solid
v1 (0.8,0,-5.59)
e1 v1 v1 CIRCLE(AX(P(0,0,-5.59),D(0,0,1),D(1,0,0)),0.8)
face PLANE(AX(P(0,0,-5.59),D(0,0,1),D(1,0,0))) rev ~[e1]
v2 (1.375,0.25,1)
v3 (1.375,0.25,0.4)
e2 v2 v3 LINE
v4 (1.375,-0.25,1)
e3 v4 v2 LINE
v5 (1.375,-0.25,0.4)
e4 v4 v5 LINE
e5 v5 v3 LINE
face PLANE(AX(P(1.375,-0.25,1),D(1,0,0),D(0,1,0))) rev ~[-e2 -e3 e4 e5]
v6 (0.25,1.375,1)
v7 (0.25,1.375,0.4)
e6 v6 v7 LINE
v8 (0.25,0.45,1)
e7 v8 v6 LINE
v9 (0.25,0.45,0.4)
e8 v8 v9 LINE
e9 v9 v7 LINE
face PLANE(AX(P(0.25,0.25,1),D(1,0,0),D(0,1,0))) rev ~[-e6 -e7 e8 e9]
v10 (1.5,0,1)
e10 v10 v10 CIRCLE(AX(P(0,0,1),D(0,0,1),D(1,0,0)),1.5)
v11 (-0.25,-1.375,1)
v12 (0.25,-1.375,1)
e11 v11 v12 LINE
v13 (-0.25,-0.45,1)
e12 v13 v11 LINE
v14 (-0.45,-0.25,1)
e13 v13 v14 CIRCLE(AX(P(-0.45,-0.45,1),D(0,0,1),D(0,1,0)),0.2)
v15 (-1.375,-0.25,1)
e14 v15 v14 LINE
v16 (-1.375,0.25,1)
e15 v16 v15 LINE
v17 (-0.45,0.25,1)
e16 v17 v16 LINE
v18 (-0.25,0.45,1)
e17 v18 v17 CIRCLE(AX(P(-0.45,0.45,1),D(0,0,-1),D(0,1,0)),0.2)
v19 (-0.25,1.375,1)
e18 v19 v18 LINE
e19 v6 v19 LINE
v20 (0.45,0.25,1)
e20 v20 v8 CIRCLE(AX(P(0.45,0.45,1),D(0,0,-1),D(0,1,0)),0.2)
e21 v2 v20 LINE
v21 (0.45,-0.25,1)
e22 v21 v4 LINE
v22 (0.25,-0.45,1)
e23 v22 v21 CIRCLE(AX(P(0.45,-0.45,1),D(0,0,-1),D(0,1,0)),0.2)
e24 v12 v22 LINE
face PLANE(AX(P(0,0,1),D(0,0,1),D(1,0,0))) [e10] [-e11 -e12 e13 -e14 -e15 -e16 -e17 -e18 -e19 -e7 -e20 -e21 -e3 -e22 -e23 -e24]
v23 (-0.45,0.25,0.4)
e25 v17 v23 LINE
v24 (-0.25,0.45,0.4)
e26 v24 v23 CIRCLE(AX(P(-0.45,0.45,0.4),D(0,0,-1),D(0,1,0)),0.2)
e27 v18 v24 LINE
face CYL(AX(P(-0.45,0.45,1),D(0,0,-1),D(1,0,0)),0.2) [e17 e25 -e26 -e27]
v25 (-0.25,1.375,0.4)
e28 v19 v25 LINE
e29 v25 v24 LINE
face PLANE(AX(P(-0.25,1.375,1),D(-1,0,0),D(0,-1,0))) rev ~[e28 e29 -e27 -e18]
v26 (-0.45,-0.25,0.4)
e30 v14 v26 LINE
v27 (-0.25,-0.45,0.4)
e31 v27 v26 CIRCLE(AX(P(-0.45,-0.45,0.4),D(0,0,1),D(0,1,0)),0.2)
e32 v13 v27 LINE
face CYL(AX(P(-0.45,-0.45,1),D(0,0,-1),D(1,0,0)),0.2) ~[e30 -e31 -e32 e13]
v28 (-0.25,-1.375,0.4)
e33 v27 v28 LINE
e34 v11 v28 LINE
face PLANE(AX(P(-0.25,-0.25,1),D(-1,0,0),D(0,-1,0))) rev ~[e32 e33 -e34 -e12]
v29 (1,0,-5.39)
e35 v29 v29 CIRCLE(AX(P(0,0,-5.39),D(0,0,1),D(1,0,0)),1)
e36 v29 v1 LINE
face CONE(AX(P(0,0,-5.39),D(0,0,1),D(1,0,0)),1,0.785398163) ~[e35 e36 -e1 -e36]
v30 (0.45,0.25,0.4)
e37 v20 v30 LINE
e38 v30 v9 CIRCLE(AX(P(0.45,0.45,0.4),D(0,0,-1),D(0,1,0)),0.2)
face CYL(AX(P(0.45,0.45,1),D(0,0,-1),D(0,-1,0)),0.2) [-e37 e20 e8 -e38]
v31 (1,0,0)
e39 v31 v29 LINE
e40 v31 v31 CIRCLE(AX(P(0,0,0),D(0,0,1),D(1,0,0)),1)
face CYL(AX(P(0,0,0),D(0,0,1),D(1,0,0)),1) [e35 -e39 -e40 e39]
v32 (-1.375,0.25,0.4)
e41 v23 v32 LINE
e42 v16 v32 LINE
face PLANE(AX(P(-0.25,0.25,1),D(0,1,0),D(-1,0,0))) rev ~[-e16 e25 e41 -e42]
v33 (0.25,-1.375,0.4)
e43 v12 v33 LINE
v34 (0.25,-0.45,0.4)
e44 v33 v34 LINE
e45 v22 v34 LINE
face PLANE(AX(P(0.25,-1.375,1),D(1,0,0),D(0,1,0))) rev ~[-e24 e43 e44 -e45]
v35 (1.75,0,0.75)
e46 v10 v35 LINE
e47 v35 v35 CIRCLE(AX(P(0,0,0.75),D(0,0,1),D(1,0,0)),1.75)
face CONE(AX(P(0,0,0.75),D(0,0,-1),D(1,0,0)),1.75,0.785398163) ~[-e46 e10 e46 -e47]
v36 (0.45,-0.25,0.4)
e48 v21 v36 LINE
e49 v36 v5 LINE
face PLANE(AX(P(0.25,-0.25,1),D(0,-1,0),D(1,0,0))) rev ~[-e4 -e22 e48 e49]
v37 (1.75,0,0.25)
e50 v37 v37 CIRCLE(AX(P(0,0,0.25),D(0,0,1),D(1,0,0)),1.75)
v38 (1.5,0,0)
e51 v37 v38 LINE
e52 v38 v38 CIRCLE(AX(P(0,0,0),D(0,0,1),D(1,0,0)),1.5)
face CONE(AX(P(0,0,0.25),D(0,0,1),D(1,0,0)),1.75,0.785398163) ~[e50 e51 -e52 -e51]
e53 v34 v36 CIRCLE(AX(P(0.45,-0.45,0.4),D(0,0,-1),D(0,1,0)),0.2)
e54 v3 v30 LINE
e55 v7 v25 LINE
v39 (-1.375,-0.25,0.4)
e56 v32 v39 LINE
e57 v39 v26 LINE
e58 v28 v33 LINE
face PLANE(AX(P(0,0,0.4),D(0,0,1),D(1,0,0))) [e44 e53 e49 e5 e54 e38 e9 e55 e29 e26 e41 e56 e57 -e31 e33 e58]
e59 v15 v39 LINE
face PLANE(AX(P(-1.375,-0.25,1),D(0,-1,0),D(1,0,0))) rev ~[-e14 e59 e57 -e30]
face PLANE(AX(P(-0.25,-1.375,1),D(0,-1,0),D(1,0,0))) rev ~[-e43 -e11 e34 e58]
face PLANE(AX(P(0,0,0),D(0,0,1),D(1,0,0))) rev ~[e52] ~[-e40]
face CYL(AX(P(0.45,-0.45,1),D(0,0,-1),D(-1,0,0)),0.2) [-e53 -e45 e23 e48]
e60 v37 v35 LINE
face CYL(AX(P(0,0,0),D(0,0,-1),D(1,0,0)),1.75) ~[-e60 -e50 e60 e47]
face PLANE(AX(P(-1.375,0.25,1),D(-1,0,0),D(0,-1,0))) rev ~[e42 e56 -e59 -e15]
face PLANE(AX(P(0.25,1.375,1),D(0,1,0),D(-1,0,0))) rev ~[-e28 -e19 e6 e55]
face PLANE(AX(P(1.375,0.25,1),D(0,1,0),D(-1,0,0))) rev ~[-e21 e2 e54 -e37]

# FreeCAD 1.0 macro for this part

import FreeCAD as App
import Part
import Sketcher

V = App.Vector
Q = App.Units.Quantity


def edges_at(feature, points):
    """Names of the edges that pass closest to the given points."""
    edges = feature.Shape.Edges
    near = lambda p: min(range(len(edges)), key=lambda i: edges[i].distToShape(Part.Vertex(*p))[0])
    return sorted({f"Edge{near(p) + 1}" for p in points})

doc = App.newDocument("Part")
body = doc.addObject("PartDesign::Body", "Body")

# Sketch on XY plane
sketch1 = body.newObject("Sketcher::SketchObject", "Sketch")
sketch1.AttachmentSupport = (doc.getObject("XY_Plane"), [""])
sketch1.MapMode = "FlatFace"
sketch1.addGeometry(Part.Circle(V(0, 0, 0), V(0, 0, 1), 1), False)
sketch1.addConstraint(Sketcher.Constraint("Coincident", 0, 3, -1, 1))
sketch1.addConstraint(Sketcher.Constraint("Diameter", 0, Q("2 mm")))
pad1 = body.newObject("PartDesign::Pad", "Pad")
pad1.Profile = sketch1
pad1.Length = 5.59
pad1.Reversed = True

# Sketch on XY plane
sketch2 = body.newObject("Sketcher::SketchObject", "Sketch001")
sketch2.AttachmentSupport = (doc.getObject("XY_Plane"), [""])
sketch2.MapMode = "FlatFace"
sketch2.addGeometry(Part.Circle(V(0, 0, 0), V(0, 0, 1), 1.8), False)
sketch2.addConstraint(Sketcher.Constraint("Coincident", 0, 3, -1, 1))
sketch2.addConstraint(Sketcher.Constraint("Diameter", 0, Q("3.5 mm")))
pad2 = body.newObject("PartDesign::Pad", "Pad001")
pad2.Profile = sketch2
pad2.Length = 1

# Sketch on XY plane
sketch3 = body.newObject("Sketcher::SketchObject", "Sketch002")
sketch3.AttachmentSupport = (doc.getObject("XY_Plane"), [""])
sketch3.MapMode = "FlatFace"
sketch3.AttachmentOffset = App.Placement(V(0, 0, 1), App.Rotation())
sketch3.addGeometry(Part.LineSegment(V(-0.2, -0.2, 0), V(-0.2, -1.4, 0)), False)
sketch3.addGeometry(Part.LineSegment(V(-0.2, -1.4, 0), V(0.2, -1.4, 0)), False)
sketch3.addGeometry(Part.LineSegment(V(0.2, -1.4, 0), V(0.2, -0.2, 0)), False)
sketch3.addGeometry(Part.LineSegment(V(0.2, -0.2, 0), V(1.4, -0.2, 0)), False)
sketch3.addGeometry(Part.LineSegment(V(1.4, -0.2, 0), V(1.4, 0.2, 0)), False)
sketch3.addGeometry(Part.LineSegment(V(1.4, 0.2, 0), V(0.2, 0.2, 0)), False)
sketch3.addGeometry(Part.LineSegment(V(0.2, 0.2, 0), V(0.2, 1.4, 0)), False)
sketch3.addGeometry(Part.LineSegment(V(0.2, 1.4, 0), V(-0.2, 1.4, 0)), False)
sketch3.addGeometry(Part.LineSegment(V(-0.2, 1.4, 0), V(-0.2, 0.2, 0)), False)
sketch3.addGeometry(Part.LineSegment(V(-0.2, 0.2, 0), V(-1.4, 0.2, 0)), False)
sketch3.addGeometry(Part.LineSegment(V(-1.4, 0.2, 0), V(-1.4, -0.2, 0)), False)
sketch3.addGeometry(Part.LineSegment(V(-1.4, -0.2, 0), V(-0.2, -0.2, 0)), False)
sketch3.addConstraint(Sketcher.Constraint("Coincident", 0, 2, 1, 1))
sketch3.addConstraint(Sketcher.Constraint("Coincident", 1, 2, 2, 1))
sketch3.addConstraint(Sketcher.Constraint("Coincident", 2, 2, 3, 1))
sketch3.addConstraint(Sketcher.Constraint("Coincident", 3, 2, 4, 1))
sketch3.addConstraint(Sketcher.Constraint("Coincident", 4, 2, 5, 1))
sketch3.addConstraint(Sketcher.Constraint("Coincident", 5, 2, 6, 1))
sketch3.addConstraint(Sketcher.Constraint("Coincident", 6, 2, 7, 1))
sketch3.addConstraint(Sketcher.Constraint("Coincident", 7, 2, 8, 1))
sketch3.addConstraint(Sketcher.Constraint("Coincident", 8, 2, 9, 1))
sketch3.addConstraint(Sketcher.Constraint("Coincident", 9, 2, 10, 1))
sketch3.addConstraint(Sketcher.Constraint("Coincident", 10, 2, 11, 1))
sketch3.addConstraint(Sketcher.Constraint("Coincident", 11, 2, 0, 1))
sketch3.addConstraint(Sketcher.Constraint("Vertical", 0))
sketch3.addConstraint(Sketcher.Constraint("Horizontal", 1))
sketch3.addConstraint(Sketcher.Constraint("Vertical", 2))
sketch3.addConstraint(Sketcher.Constraint("Horizontal", 3))
sketch3.addConstraint(Sketcher.Constraint("Vertical", 4))
sketch3.addConstraint(Sketcher.Constraint("Horizontal", 5))
sketch3.addConstraint(Sketcher.Constraint("Vertical", 6))
sketch3.addConstraint(Sketcher.Constraint("Horizontal", 7))
sketch3.addConstraint(Sketcher.Constraint("Vertical", 8))
sketch3.addConstraint(Sketcher.Constraint("Horizontal", 9))
sketch3.addConstraint(Sketcher.Constraint("Vertical", 10))
sketch3.addConstraint(Sketcher.Constraint("Horizontal", 11))
sketch3.addConstraint(Sketcher.Constraint("Symmetric", 0, 2, 6, 2, -1, 1))
sketch3.addConstraint(Sketcher.Constraint("Symmetric", 2, 2, 8, 2, -1, 1))
sketch3.addConstraint(Sketcher.Constraint("Symmetric", 4, 2, 10, 2, -1, 1))
sketch3.addConstraint(Sketcher.Constraint("Symmetric", 5, 2, 8, 2, -2))
sketch3.addConstraint(Sketcher.Constraint("Equal", 11, 0))
sketch3.addConstraint(Sketcher.Constraint("Equal", 7, 4))
sketch3.addConstraint(Sketcher.Constraint("DistanceX", 1, 1, 1, 2, Q("0.5 mm")))
sketch3.addConstraint(Sketcher.Constraint("DistanceY", 1, 2, 6, 2, Q("2.75 mm")))
pocket1 = body.newObject("PartDesign::Pocket", "Pocket")
pocket1.Profile = sketch3
pocket1.Length = 0.6
doc.recompute()

fillet = body.newObject("PartDesign::Fillet", "Fillet")
fillet.Base = (pocket1, edges_at(pocket1, [
    (-0.25, 0.25, 0.7),
    (0.25, 0.25, 0.7),
    (-0.25, -0.25, 0.7),
    (0.25, -0.25, 0.7),
]))
fillet.Radius = 0.2
doc.recompute()

chamfer = body.newObject("PartDesign::Chamfer", "Chamfer")
chamfer.Base = (fillet, edges_at(fillet, [(-1.75, 0, 1), (-1.75, 0, 0)]))
chamfer.Size = 0.25
doc.recompute()

chamfer2 = body.newObject("PartDesign::Chamfer", "Chamfer001")
chamfer2.Base = (chamfer, edges_at(chamfer, [(-1, 0, -5.59)]))
chamfer2.Size = 0.2

doc.recompute()
